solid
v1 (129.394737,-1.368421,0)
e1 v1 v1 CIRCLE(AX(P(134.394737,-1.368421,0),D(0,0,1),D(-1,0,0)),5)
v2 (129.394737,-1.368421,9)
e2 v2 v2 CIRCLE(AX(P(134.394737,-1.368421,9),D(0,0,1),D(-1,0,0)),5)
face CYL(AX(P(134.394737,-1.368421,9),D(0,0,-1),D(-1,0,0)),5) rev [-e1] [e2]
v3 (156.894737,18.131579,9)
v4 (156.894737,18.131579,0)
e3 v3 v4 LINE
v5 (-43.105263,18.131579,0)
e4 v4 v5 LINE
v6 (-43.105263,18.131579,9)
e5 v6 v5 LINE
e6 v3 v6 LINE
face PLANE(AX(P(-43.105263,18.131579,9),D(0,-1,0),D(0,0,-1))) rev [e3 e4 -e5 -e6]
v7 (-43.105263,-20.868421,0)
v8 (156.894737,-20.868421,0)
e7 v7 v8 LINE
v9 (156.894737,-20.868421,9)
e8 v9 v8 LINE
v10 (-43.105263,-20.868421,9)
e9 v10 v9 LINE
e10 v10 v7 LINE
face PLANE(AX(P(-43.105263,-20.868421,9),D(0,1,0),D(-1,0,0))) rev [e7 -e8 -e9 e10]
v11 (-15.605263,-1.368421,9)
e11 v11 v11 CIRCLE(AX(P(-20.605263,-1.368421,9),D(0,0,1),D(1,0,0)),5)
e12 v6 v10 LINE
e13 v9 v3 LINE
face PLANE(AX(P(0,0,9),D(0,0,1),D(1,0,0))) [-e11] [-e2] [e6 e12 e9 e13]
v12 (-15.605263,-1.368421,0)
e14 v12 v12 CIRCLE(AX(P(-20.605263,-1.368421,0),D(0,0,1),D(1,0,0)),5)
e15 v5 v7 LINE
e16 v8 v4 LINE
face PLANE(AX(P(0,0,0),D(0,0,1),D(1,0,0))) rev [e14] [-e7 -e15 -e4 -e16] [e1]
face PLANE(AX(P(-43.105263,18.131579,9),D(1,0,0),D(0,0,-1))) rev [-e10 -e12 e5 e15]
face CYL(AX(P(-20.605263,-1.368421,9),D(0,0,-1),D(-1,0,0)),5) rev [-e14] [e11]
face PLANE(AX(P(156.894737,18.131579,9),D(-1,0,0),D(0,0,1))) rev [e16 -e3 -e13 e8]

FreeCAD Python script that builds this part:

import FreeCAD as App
import Part
import Sketcher
Q = App.Units.Quantity

doc = App.newDocument("Part")
body = doc.addObject("PartDesign::Body", "Body")

sketch1 = body.newObject("Sketcher::SketchObject", "Sketch")
sketch1.AttachmentSupport = (doc.getObject("XY_Plane"), [""])
sketch1.MapMode = "FlatFace"
sketch1.addGeometry([
    Part.LineSegment(App.Vector(-43, 18, 0), App.Vector(-43, -21, 0)),
    Part.LineSegment(App.Vector(-43, -21, 0), App.Vector(157, -21, 0)),
    Part.LineSegment(App.Vector(157, -21, 0), App.Vector(157, 18, 0)),
    Part.LineSegment(App.Vector(157, 18, 0), App.Vector(-43, 18, 0)),
    Part.Circle(App.Vector(-21, -1, 0), App.Vector(0, 0, 1), 5),
    Part.Circle(App.Vector(134, -1, 0), App.Vector(0, 0, 1), 5),
], False)
sketch1.addConstraint([
    Sketcher.Constraint("Coincident", 0, 2, 1, 1),
    Sketcher.Constraint("Coincident", 1, 2, 2, 1),
    Sketcher.Constraint("Coincident", 2, 2, 3, 1),
    Sketcher.Constraint("Coincident", 3, 2, 0, 1),
    Sketcher.Constraint("Vertical", 0),
    Sketcher.Constraint("Horizontal", 1),
    Sketcher.Constraint("Vertical", 2),
    Sketcher.Constraint("Horizontal", 3),
    Sketcher.Constraint("Equal", 4, 5),
    Sketcher.Constraint("Horizontal", 4, 3, 5, 3),
    Sketcher.Constraint("Diameter", 4, Q("10 mm")),
    Sketcher.Constraint("DistanceX", 1, 1, 1, 2, Q("200 mm")),
    Sketcher.Constraint("DistanceY", 0, 2, 0, 1, Q("39 mm")),
    Sketcher.Constraint("DistanceX", 4, 3, 5, 3, Q("155 mm")),
    Sketcher.Constraint("DistanceX", 0, 2, 4, 3, Q("22.5 mm")),
    Sketcher.Constraint("DistanceY", 0, 2, 4, 3, Q("19.5 mm")),
    Sketcher.Constraint("DistanceY", 4, 3, -1, 1, Q("1.368421 mm")),
    Sketcher.Constraint("DistanceX", 4, 3, -1, 1, Q("20.605263 mm")),
])
pad1 = body.newObject("PartDesign::Pad", "Pad")
pad1.Profile = sketch1
pad1.Length = 9

doc.recompute()
